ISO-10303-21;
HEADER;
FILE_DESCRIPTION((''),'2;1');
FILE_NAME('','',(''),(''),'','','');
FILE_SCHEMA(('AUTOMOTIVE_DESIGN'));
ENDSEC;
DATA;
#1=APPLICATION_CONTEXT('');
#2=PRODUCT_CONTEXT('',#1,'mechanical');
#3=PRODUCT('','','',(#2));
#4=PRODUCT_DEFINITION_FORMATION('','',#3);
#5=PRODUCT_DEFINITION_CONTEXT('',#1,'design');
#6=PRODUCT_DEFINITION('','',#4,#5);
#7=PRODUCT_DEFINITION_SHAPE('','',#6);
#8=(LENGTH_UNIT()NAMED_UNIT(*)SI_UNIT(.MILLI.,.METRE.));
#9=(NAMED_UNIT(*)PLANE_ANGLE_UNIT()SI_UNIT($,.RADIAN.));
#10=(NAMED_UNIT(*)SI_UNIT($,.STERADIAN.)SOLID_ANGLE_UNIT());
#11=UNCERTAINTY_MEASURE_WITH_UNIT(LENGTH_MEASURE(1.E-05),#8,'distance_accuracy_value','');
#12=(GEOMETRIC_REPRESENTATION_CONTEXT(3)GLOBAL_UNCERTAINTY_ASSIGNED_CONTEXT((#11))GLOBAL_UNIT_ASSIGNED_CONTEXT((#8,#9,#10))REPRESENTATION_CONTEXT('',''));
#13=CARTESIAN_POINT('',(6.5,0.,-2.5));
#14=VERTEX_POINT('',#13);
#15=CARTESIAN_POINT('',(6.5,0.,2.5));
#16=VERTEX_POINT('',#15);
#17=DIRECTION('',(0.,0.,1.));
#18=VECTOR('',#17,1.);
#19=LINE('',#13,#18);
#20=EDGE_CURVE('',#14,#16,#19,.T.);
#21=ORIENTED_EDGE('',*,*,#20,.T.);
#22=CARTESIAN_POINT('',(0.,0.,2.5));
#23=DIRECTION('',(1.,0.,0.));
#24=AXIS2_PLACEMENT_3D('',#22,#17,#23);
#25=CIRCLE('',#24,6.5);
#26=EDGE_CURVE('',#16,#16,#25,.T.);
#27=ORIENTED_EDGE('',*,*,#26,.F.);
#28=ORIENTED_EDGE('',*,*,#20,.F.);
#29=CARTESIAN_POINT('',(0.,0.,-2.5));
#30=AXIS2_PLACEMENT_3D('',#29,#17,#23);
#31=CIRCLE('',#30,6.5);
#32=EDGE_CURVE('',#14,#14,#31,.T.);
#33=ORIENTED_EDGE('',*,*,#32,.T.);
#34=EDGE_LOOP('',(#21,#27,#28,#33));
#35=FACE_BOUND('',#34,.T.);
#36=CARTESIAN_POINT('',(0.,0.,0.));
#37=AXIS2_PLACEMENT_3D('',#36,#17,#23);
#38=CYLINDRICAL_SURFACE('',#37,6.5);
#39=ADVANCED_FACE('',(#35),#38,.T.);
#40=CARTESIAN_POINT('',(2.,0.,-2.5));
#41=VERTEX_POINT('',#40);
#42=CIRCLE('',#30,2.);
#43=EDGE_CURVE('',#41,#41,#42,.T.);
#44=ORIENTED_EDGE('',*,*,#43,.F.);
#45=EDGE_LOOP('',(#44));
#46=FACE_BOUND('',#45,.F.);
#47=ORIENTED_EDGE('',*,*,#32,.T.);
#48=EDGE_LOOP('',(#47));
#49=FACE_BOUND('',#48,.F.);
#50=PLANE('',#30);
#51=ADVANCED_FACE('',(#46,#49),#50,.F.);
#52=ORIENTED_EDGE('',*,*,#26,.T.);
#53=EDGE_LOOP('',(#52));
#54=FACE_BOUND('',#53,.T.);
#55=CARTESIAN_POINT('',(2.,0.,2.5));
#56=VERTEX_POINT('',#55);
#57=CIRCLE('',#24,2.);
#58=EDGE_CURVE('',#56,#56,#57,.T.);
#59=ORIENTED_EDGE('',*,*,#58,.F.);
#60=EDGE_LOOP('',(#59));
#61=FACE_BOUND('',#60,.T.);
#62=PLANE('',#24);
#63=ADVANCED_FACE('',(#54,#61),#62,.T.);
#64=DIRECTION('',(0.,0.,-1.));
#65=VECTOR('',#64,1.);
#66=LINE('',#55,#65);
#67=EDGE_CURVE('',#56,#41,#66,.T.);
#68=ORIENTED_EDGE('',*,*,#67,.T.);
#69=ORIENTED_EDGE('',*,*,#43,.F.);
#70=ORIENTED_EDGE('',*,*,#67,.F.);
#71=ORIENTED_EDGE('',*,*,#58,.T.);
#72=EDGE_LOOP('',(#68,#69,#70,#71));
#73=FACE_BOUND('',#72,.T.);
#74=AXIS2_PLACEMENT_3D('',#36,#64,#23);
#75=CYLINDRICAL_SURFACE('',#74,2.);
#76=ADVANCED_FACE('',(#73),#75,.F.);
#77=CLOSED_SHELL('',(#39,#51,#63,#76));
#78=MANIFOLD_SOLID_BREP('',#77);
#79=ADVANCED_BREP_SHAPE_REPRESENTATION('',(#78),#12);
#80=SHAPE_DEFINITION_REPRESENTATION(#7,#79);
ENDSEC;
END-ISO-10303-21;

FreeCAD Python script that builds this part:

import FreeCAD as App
import Part
import Sketcher
from FreeCAD import Vector
Q = App.Units.Quantity

doc = App.newDocument("Part")
params = doc.addObject("Spreadsheet::Sheet", "Params")
for row, (alias, value) in enumerate([
    ("sketch1_diameter", "13 mm"),
    ("sketch1_diameter2", "4 mm"),
    ("pad1_length", "5 mm"),
], start=1):
    params.set(f"A{row}", alias)
    params.set(f"B{row}", "=" + value)
    params.setAlias(f"B{row}", alias)

body = doc.addObject("PartDesign::Body", "Body")

sketch1 = body.newObject("Sketcher::SketchObject", "Sketch")
sketch1.AttachmentSupport = (doc.getObject("XY_Plane"), [""])
sketch1.MapMode = "FlatFace"
sketch1.addGeometry(Part.Circle(Vector(0, 0, 0), Vector(0, 0, 1), 6.5), False)
sketch1.addGeometry(Part.Circle(Vector(0, 0, 0), Vector(0, 0, 1), 2), False)
sketch1.addConstraint(Sketcher.Constraint("Coincident", 0, 3, -1, 1))
sketch1.addConstraint(Sketcher.Constraint("Coincident", 1, 3, -1, 1))
sketch1.addConstraint(Sketcher.Constraint("Diameter", 0, Q("13 mm")))
sketch1.addConstraint(Sketcher.Constraint("Diameter", 1, Q("4 mm")))
sketch1.setExpression("Constraints[2]", "Params.sketch1_diameter")
sketch1.setExpression("Constraints[3]", "Params.sketch1_diameter2")
pad1 = body.newObject("PartDesign::Pad", "Pad")
pad1.Profile = sketch1
pad1.setExpression("Length", "Params.pad1_length")
pad1.Midplane = True

doc.recompute()
